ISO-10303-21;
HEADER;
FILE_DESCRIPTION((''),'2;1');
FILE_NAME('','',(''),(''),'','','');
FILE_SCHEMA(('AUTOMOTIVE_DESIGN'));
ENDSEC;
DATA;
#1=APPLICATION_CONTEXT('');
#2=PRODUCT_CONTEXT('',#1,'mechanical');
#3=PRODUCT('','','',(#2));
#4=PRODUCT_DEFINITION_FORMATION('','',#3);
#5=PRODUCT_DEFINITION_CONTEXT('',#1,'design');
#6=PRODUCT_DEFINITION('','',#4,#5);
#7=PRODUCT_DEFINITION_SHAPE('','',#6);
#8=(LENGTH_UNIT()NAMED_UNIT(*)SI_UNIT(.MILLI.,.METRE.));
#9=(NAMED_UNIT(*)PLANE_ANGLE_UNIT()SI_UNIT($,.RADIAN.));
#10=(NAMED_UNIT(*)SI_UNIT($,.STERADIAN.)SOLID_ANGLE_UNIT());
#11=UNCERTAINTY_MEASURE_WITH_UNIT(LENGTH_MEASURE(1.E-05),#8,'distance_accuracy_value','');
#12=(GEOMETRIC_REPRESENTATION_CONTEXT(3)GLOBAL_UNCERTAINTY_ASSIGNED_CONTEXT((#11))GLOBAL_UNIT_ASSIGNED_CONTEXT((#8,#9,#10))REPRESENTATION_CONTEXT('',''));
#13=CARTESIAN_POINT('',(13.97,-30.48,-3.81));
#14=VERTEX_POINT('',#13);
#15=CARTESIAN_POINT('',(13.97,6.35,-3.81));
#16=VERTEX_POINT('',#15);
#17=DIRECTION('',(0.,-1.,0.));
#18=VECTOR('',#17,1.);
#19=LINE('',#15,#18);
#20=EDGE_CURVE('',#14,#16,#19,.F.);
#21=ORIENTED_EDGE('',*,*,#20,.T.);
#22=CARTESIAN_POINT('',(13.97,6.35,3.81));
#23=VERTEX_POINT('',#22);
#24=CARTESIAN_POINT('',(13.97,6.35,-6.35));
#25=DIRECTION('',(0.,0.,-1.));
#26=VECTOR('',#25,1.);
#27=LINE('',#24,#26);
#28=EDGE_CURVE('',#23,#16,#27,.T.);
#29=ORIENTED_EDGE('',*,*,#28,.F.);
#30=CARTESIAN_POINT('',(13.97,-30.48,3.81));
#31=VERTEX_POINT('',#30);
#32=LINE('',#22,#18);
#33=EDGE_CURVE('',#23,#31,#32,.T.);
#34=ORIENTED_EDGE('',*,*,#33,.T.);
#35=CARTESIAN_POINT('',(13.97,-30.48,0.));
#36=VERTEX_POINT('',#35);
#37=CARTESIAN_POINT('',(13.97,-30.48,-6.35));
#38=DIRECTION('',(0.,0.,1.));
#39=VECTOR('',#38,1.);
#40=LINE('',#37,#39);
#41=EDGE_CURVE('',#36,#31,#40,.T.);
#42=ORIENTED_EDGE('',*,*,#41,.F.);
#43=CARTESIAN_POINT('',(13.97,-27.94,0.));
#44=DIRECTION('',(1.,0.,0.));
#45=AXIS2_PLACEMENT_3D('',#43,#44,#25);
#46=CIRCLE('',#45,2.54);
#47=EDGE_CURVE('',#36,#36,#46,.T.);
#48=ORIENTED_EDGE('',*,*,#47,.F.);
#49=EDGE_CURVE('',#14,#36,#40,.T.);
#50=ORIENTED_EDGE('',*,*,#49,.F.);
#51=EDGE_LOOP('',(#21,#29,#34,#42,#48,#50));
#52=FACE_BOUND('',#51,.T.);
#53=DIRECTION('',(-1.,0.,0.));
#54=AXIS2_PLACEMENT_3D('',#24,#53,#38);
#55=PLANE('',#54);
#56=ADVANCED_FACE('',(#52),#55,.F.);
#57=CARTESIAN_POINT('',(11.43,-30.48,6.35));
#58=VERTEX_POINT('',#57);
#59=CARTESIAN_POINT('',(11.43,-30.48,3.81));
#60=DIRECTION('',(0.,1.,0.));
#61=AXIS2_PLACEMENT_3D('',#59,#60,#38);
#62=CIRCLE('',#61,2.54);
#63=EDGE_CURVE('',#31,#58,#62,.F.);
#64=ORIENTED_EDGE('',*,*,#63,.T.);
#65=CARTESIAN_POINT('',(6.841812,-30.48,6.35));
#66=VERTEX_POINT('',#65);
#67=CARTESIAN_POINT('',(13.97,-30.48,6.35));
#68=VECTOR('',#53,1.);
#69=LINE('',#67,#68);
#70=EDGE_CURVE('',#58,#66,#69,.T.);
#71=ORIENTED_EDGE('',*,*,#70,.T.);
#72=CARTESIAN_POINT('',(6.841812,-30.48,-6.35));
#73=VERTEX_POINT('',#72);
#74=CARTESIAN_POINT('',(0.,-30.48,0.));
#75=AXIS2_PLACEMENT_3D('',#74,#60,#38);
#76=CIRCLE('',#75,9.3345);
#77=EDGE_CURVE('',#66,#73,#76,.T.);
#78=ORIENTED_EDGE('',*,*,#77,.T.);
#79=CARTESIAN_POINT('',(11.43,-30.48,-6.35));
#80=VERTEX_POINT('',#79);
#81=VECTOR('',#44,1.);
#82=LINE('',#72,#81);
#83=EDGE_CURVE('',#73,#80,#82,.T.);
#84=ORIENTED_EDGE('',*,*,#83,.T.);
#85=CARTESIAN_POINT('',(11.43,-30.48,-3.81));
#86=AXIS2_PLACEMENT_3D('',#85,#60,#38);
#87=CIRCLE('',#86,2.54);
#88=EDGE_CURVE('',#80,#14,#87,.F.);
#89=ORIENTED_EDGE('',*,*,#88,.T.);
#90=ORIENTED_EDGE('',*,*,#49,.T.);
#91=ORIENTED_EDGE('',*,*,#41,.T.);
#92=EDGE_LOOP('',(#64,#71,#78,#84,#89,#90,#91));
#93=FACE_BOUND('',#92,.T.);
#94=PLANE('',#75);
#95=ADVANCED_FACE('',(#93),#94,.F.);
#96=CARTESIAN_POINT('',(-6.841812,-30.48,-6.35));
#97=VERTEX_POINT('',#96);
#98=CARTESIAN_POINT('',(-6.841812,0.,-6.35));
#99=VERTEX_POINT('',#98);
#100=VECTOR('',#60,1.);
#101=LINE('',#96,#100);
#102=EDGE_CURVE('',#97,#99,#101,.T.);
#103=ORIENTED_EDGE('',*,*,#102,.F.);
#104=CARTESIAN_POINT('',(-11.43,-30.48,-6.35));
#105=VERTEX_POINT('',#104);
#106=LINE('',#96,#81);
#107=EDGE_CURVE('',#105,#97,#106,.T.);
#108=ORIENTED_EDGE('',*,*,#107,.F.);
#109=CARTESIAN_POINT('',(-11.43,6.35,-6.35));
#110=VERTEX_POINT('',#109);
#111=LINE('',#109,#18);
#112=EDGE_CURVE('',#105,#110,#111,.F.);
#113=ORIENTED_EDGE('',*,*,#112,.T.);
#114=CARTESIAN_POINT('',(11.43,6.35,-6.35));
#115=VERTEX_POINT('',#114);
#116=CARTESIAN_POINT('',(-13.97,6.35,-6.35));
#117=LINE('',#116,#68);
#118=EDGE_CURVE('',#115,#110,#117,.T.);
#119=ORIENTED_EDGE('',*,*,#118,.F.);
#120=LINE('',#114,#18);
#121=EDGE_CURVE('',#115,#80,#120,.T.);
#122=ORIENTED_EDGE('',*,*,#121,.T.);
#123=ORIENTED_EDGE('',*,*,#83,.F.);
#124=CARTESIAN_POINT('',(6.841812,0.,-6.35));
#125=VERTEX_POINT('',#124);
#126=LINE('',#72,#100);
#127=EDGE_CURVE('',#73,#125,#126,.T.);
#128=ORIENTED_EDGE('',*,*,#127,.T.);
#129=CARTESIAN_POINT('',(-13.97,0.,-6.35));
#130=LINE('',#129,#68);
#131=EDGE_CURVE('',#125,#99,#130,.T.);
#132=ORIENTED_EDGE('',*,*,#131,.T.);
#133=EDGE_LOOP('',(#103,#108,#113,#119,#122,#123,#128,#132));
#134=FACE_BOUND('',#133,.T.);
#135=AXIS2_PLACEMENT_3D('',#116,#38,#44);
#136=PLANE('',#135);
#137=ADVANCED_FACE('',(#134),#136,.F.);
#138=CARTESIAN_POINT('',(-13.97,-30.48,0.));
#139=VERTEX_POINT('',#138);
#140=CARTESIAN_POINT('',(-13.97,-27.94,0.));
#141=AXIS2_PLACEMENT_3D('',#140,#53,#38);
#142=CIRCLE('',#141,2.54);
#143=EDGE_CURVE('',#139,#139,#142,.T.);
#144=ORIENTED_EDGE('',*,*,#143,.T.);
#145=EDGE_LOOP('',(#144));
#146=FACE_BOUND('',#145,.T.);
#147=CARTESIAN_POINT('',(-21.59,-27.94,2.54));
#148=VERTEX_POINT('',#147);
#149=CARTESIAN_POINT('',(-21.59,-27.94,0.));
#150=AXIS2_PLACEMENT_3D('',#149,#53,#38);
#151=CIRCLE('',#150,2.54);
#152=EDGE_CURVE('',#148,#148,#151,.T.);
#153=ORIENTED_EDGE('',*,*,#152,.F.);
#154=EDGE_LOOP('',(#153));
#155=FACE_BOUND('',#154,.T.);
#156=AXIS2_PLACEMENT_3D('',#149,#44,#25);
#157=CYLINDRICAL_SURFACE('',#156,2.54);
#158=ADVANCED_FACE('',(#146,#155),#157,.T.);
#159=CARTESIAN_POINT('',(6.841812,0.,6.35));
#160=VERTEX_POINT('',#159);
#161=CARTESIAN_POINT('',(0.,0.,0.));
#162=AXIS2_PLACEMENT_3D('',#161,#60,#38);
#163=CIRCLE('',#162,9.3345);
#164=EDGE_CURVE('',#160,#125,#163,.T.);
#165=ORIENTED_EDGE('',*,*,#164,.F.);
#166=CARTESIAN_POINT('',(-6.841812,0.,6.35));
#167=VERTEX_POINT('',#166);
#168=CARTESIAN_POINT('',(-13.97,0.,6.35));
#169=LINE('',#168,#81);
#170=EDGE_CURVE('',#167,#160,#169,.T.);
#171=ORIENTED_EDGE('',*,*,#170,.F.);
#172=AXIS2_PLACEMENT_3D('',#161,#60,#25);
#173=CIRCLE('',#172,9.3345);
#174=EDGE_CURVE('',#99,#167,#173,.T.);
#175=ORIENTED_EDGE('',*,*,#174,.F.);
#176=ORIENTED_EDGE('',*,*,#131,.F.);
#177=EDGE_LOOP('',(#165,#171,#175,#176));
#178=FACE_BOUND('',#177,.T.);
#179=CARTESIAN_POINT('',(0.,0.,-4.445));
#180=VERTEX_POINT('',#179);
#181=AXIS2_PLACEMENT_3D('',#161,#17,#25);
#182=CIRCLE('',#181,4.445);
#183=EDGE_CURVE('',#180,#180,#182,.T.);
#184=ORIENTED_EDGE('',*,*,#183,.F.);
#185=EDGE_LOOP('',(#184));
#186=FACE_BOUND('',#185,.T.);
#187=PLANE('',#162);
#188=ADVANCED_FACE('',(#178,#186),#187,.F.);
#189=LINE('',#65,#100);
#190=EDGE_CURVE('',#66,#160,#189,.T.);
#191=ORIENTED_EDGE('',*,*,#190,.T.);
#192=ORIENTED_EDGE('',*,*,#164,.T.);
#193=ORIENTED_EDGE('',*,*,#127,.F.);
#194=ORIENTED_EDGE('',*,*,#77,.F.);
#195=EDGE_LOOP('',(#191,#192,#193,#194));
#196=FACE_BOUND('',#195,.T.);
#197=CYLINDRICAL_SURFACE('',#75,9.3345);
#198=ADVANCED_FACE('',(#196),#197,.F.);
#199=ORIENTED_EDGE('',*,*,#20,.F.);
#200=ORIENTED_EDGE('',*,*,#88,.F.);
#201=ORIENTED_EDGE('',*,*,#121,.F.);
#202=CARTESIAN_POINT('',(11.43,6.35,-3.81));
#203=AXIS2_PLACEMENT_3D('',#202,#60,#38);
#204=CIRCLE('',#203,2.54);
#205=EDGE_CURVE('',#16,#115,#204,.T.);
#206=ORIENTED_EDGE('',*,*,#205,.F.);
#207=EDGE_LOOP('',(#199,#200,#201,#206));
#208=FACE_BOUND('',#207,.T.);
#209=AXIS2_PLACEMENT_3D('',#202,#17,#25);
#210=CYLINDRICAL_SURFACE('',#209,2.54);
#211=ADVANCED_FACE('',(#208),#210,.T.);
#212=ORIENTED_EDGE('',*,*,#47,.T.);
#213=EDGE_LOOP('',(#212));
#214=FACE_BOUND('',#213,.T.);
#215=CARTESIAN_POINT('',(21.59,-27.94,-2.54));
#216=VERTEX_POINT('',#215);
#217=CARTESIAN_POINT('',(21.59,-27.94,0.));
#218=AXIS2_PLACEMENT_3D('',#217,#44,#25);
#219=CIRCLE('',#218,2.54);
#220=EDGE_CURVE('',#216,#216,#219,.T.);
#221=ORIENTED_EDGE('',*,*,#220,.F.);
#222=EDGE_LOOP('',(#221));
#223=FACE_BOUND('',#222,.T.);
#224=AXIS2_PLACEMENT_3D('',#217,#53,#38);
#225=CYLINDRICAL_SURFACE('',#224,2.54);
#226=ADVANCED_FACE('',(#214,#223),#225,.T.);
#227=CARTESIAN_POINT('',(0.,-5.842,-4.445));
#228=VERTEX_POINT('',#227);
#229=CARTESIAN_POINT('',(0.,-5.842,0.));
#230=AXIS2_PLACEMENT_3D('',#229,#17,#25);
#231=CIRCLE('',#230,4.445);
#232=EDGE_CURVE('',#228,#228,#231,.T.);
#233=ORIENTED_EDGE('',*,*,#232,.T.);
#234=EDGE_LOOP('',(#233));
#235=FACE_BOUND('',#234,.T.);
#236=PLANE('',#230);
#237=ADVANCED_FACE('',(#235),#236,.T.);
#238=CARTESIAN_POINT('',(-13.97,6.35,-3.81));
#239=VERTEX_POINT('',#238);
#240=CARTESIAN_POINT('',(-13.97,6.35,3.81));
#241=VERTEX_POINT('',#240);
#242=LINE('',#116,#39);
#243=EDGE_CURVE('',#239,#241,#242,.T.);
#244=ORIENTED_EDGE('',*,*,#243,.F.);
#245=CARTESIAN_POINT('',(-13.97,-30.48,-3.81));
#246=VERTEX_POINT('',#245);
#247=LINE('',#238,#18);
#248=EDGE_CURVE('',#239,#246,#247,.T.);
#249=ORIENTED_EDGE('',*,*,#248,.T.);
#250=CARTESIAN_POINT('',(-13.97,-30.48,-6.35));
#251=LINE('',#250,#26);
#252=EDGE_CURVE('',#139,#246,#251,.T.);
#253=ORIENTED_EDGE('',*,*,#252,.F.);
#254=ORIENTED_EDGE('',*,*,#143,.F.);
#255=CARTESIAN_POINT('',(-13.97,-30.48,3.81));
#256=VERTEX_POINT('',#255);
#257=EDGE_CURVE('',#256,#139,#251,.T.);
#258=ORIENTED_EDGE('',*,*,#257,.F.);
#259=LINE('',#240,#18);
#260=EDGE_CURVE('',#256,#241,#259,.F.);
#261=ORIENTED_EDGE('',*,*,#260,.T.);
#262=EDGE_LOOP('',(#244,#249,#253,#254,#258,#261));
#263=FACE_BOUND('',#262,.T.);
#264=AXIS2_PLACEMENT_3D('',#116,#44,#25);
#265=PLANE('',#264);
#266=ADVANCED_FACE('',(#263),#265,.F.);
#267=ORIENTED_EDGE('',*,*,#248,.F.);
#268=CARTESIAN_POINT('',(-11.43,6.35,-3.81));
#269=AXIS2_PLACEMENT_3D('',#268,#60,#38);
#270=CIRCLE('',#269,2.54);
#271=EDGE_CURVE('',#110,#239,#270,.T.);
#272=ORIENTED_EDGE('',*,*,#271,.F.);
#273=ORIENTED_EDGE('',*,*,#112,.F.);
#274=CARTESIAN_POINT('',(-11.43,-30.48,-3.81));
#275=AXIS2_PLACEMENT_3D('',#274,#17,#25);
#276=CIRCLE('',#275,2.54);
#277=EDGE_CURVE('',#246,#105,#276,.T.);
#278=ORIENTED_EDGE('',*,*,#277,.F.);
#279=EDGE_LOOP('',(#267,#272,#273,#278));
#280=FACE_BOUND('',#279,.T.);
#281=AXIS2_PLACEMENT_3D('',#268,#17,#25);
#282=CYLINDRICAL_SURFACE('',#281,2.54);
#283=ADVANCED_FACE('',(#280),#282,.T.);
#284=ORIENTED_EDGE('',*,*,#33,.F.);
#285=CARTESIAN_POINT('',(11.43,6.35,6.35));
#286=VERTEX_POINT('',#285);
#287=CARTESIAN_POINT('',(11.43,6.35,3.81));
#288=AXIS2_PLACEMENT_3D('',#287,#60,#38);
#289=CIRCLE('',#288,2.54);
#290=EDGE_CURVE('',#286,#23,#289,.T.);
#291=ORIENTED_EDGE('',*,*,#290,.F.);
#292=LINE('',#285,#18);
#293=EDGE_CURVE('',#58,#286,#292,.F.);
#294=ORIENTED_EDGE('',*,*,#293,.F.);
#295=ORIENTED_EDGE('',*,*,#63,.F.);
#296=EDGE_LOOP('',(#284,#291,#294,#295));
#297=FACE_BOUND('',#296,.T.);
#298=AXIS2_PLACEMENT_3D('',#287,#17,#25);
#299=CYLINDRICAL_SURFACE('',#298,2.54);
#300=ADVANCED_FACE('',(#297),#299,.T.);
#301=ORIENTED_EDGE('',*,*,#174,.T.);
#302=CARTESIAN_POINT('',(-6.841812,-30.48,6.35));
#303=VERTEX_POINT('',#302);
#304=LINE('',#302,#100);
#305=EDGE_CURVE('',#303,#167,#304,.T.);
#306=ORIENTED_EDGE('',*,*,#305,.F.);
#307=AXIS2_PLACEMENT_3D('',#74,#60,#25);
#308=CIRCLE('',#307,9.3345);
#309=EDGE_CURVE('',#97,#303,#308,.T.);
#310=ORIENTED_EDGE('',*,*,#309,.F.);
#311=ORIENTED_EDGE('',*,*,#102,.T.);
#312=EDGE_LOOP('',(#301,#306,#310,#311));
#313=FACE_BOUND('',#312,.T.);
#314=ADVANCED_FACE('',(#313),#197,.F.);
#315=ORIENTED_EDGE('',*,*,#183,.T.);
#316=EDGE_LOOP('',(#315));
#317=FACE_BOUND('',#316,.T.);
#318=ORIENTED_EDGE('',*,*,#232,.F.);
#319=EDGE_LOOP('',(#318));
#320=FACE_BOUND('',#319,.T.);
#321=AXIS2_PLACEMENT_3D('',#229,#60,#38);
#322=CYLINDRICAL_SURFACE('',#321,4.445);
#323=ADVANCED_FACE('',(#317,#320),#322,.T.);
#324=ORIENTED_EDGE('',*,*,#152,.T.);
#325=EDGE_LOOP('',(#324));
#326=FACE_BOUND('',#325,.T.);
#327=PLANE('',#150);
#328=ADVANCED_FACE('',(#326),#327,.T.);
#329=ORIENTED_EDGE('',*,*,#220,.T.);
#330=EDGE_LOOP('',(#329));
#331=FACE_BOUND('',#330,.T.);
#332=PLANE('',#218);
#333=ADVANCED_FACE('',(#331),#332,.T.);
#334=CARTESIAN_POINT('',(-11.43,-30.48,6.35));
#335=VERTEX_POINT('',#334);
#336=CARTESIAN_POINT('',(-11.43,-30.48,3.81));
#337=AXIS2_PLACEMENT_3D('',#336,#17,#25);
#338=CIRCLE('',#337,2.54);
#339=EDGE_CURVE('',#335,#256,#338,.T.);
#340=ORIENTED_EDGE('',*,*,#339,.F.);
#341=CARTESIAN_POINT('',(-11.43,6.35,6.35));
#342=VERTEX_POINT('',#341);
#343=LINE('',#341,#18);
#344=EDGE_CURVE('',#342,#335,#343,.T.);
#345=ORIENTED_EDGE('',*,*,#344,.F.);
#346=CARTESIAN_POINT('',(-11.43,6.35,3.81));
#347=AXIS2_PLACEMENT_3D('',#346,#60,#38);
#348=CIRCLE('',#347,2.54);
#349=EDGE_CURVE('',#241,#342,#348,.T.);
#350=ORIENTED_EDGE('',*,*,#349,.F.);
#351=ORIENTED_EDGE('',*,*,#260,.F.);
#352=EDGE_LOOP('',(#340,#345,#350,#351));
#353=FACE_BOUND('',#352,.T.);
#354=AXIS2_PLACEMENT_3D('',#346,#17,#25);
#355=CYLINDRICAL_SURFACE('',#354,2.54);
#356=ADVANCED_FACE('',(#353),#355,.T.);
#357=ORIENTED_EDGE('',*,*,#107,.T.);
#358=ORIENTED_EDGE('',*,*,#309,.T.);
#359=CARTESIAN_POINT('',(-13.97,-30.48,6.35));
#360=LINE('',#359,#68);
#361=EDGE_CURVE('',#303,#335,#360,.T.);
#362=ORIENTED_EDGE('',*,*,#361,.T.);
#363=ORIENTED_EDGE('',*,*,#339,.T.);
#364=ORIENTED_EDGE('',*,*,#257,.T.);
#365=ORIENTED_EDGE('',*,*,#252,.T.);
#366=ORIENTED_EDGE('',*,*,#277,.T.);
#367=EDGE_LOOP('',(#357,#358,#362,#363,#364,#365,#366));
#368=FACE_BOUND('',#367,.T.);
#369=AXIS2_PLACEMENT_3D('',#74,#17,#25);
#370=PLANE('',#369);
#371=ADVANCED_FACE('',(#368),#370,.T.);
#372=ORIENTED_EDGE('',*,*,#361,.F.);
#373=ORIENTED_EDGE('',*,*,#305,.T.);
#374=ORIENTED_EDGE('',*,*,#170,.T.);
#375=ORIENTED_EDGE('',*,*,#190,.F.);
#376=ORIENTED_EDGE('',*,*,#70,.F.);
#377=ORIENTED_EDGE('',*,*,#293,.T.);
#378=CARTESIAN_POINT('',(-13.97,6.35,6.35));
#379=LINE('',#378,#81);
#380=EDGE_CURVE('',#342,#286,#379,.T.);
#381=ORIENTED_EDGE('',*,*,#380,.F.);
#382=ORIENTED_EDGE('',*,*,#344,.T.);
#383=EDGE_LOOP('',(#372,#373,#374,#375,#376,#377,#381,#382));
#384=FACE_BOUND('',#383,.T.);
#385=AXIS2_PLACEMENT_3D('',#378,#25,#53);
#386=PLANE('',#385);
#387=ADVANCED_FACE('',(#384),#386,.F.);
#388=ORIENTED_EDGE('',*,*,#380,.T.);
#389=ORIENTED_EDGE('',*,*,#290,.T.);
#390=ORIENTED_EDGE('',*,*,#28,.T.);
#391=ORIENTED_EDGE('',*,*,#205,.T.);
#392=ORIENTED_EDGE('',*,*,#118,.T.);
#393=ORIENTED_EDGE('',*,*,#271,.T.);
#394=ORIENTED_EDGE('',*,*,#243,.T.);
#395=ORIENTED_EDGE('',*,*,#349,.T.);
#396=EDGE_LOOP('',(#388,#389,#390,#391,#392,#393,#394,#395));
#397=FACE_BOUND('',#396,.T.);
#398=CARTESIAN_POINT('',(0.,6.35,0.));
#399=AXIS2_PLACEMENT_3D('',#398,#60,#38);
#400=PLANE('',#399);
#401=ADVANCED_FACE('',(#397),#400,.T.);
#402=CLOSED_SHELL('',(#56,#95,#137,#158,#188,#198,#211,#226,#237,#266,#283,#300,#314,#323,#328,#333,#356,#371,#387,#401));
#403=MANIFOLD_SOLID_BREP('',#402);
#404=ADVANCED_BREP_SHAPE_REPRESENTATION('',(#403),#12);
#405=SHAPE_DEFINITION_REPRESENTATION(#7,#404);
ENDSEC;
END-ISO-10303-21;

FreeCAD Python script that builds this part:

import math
import FreeCAD as App
import Part
import Sketcher
Q = App.Units.Quantity


def edges_at(feature, points):
    """Names of the edges that pass closest to the given points."""
    edges = feature.Shape.Edges
    near = lambda p: min(range(len(edges)), key=lambda i: edges[i].distToShape(Part.Vertex(*p))[0])
    return sorted({f"Edge{near(p) + 1}" for p in points})

doc = App.newDocument("Part")
params = doc.addObject("Spreadsheet::Sheet", "Params")
for row, (alias, value) in enumerate([
    ("sketch1_width", "1.1 in"),
    ("sketch1_height", "0.5 in"),
    ("pad1_length", "0.25 in"),
    ("sketch2_diameter", "0.35 in"),
    ("pad2_length", "0.23 in"),
    ("sketch3_height", "0.5 in"),
    ("pad3_length", "1.2 in"),
    ("sketch4_diameter", "0.2 in"),
    ("pad4_length", "0.3 in"),
    ("sketch5_diameter", "0.2 in"),
    ("pad5_length", "0.3 in"),
    ("fillet_radius", "0.1 in"),
], start=1):
    params.set(f"A{row}", alias)
    params.set(f"B{row}", "=" + value)
    params.setAlias(f"B{row}", alias)

body = doc.addObject("PartDesign::Body", "Body")

sketch1 = body.newObject("Sketcher::SketchObject", "Sketch")
sketch1.AttachmentSupport = (doc.getObject("XZ_Plane"), [""])
sketch1.MapMode = "FlatFace"
sketch1.addGeometry([
    Part.LineSegment(App.Vector(-14, -6, 0), App.Vector(-14, 6, 0)),
    Part.LineSegment(App.Vector(-14, 6, 0), App.Vector(14, 6, 0)),
    Part.LineSegment(App.Vector(14, 6, 0), App.Vector(14, -6, 0)),
    Part.LineSegment(App.Vector(14, -6, 0), App.Vector(-14, -6, 0)),
], False)
sketch1.addConstraint([
    Sketcher.Constraint("Coincident", 0, 2, 1, 1),
    Sketcher.Constraint("Coincident", 1, 2, 2, 1),
    Sketcher.Constraint("Coincident", 2, 2, 3, 1),
    Sketcher.Constraint("Coincident", 3, 2, 0, 1),
    Sketcher.Constraint("Vertical", 0),
    Sketcher.Constraint("Horizontal", 1),
    Sketcher.Constraint("Vertical", 2),
    Sketcher.Constraint("Horizontal", 3),
    Sketcher.Constraint("Symmetric", 0, 2, 2, 2, -1, 1),
    Sketcher.Constraint("DistanceX", 1, 1, 1, 2, Q("1.1 in")),
    Sketcher.Constraint("DistanceY", 0, 1, 0, 2, Q("0.5 in")),
])
sketch1.setExpression("Constraints[9]", "Params.sketch1_width")
sketch1.setExpression("Constraints[10]", "Params.sketch1_height")
pad1 = body.newObject("PartDesign::Pad", "Pad")
pad1.Profile = sketch1
pad1.setExpression("Length", "Params.pad1_length")
pad1.Reversed = True

sketch2 = body.newObject("Sketcher::SketchObject", "Sketch001")
sketch2.AttachmentSupport = (doc.getObject("XZ_Plane"), [""])
sketch2.MapMode = "FlatFace"
sketch2.addGeometry(Part.Circle(App.Vector(0, 0, 0), App.Vector(0, 0, 1), 4.4), False)
sketch2.addConstraint([
    Sketcher.Constraint("Coincident", 0, 3, -1, 1),
    Sketcher.Constraint("Diameter", 0, Q("0.35 in")),
])
sketch2.setExpression("Constraints[1]", "Params.sketch2_diameter")
pad2 = body.newObject("PartDesign::Pad", "Pad001")
pad2.Profile = sketch2
pad2.setExpression("Length", "Params.pad2_length")

sketch3 = body.newObject("Sketcher::SketchObject", "Sketch002")
sketch3.AttachmentSupport = (doc.getObject("XZ_Plane"), [""])
sketch3.MapMode = "FlatFace"
sketch3.addGeometry([
    Part.LineSegment(App.Vector(-14, 6, 0), App.Vector(-14, -6, 0)),
    Part.LineSegment(App.Vector(-14, -6, 0), App.Vector(-7, -6, 0)),
    Part.ArcOfCircle(Part.Circle(App.Vector(0, 0, 0), App.Vector(0, 0, 1), 9), math.radians(137), math.radians(223)),
    Part.LineSegment(App.Vector(-7, 6, 0), App.Vector(-14, 6, 0)),
    Part.LineSegment(App.Vector(7, -6, 0), App.Vector(14, -6, 0)),
    Part.LineSegment(App.Vector(14, -6, 0), App.Vector(14, 6, 0)),
    Part.LineSegment(App.Vector(14, 6, 0), App.Vector(7, 6, 0)),
    Part.ArcOfCircle(Part.Circle(App.Vector(0, 0, 0), App.Vector(0, 0, 1), 9), math.radians(-43), math.radians(43)),
], False)
sketch3.addConstraint([
    Sketcher.Constraint("Coincident", 0, 2, 1, 1),
    Sketcher.Constraint("Coincident", 1, 2, 2, 2),
    Sketcher.Constraint("Coincident", 2, 1, 3, 1),
    Sketcher.Constraint("Coincident", 3, 2, 0, 1),
    Sketcher.Constraint("Coincident", 4, 2, 5, 1),
    Sketcher.Constraint("Coincident", 5, 2, 6, 1),
    Sketcher.Constraint("Coincident", 6, 2, 7, 2),
    Sketcher.Constraint("Coincident", 7, 1, 4, 1),
    Sketcher.Constraint("Vertical", 0),
    Sketcher.Constraint("Horizontal", 1),
    Sketcher.Constraint("Horizontal", 3),
    Sketcher.Constraint("Horizontal", 4),
    Sketcher.Constraint("Vertical", 5),
    Sketcher.Constraint("Horizontal", 6),
    Sketcher.Constraint("Coincident", 2, 3, -1, 1),
    Sketcher.Constraint("Coincident", 7, 3, -1, 1),
    Sketcher.Constraint("Equal", 2, 7),
    Sketcher.Constraint("Symmetric", 3, 2, 4, 2, -1, 1),
    Sketcher.Constraint("Horizontal", 1, 2, 4, 2),
    Sketcher.Constraint("Horizontal", 3, 2, 5, 2),
    Sketcher.Constraint("DistanceY", 0, 2, 0, 1, Q("0.5 in")),
    Sketcher.Constraint("Radius", 2, Q("0.3675 in")),
    Sketcher.Constraint("DistanceX", 0, 2, 4, 2, Q("1.1 in")),
])
sketch3.setExpression("Constraints[20]", "Params.sketch3_height")
pad3 = body.newObject("PartDesign::Pad", "Pad002")
pad3.Profile = sketch3
pad3.setExpression("Length", "Params.pad3_length")

sketch4 = body.newObject("Sketcher::SketchObject", "Sketch003")
sketch4.AttachmentSupport = (doc.getObject("YZ_Plane"), [""])
sketch4.MapMode = "FlatFace"
sketch4.AttachmentOffset = App.Placement(App.Vector(0, 0, -0.55 * 25.4), App.Rotation())
sketch4.addGeometry(Part.Circle(App.Vector(-27.9, 0, 0), App.Vector(0, 0, 1), 2.5), False)
sketch4.addConstraint([
    Sketcher.Constraint("PointOnObject", 0, 3, -1),
    Sketcher.Constraint("Diameter", 0, Q("0.2 in")),
    Sketcher.Constraint("DistanceX", 0, 3, -1, 1, Q("1.1 in")),
])
sketch4.setExpression("Constraints[1]", "Params.sketch4_diameter")
pad4 = body.newObject("PartDesign::Pad", "Pad003")
pad4.Profile = sketch4
pad4.setExpression("Length", "Params.pad4_length")
pad4.Reversed = True

sketch5 = body.newObject("Sketcher::SketchObject", "Sketch004")
sketch5.AttachmentSupport = (doc.getObject("YZ_Plane"), [""])
sketch5.MapMode = "FlatFace"
sketch5.AttachmentOffset = App.Placement(App.Vector(0, 0, 0.55 * 25.4), App.Rotation())
sketch5.addGeometry(Part.Circle(App.Vector(-27.9, 0, 0), App.Vector(0, 0, 1), 2.5), False)
sketch5.addConstraint([
    Sketcher.Constraint("PointOnObject", 0, 3, -1),
    Sketcher.Constraint("Diameter", 0, Q("0.2 in")),
    Sketcher.Constraint("DistanceX", 0, 3, -1, 1, Q("1.1 in")),
])
sketch5.setExpression("Constraints[1]", "Params.sketch5_diameter")
pad5 = body.newObject("PartDesign::Pad", "Pad004")
pad5.Profile = sketch5
pad5.setExpression("Length", "Params.pad5_length")
doc.recompute()

fillet = body.newObject("PartDesign::Fillet", "Fillet")
fillet.Base = (pad5, edges_at(pad5, [
    (-13.97, -12.065, -6.35),
    (13.97, -12.065, -6.35),
    (13.97, -12.065, 6.35),
    (-13.97, -12.065, 6.35),
]))
fillet.setExpression("Radius", "Params.fillet_radius")

doc.recompute()
